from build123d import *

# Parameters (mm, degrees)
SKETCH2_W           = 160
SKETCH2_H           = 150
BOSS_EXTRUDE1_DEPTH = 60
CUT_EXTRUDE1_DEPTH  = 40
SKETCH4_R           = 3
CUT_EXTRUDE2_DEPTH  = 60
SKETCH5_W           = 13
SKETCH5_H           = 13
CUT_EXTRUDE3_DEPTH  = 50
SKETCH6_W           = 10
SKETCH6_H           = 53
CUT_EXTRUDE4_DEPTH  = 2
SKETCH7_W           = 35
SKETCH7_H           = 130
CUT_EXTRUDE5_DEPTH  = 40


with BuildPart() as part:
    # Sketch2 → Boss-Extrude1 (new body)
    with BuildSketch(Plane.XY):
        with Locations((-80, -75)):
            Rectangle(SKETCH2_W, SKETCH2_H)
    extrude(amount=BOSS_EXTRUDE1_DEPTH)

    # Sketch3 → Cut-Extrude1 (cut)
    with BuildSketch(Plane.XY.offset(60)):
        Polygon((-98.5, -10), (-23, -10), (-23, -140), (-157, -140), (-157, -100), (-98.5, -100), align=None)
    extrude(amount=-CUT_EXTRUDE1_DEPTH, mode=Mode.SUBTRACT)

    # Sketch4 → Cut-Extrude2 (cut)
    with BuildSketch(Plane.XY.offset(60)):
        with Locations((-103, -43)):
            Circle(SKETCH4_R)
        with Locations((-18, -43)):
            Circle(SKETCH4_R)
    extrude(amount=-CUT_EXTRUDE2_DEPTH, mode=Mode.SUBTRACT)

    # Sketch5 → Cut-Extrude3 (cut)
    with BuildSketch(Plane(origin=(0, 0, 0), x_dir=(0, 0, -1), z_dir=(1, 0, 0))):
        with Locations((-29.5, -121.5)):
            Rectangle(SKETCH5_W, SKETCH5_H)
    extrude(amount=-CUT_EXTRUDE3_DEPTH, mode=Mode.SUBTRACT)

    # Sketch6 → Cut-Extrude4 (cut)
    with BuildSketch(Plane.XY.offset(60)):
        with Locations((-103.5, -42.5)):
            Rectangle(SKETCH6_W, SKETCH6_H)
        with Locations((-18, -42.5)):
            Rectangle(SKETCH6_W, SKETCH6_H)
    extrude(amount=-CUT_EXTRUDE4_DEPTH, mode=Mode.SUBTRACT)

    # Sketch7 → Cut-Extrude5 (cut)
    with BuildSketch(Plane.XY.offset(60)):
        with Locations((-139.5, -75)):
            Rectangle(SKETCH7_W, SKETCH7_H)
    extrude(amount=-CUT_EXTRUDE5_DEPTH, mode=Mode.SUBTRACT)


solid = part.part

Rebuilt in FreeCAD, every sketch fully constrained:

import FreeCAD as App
import Part
import Sketcher
from FreeCAD import Vector

doc = App.newDocument("Part")
body = doc.addObject("PartDesign::Body", "Body")

sketch1 = body.newObject("Sketcher::SketchObject", "Sketch")
sketch1.AttachmentSupport = (doc.getObject("XY_Plane"), [""])
sketch1.MapMode = "FlatFace"
sketch1.addGeometry([
    Part.LineSegment(Vector(-160, 0, 0), Vector(-160, -150, 0)),
    Part.LineSegment(Vector(-160, -150, 0), Vector(0, -150, 0)),
    Part.LineSegment(Vector(0, -150, 0), Vector(0, 0, 0)),
    Part.LineSegment(Vector(0, 0, 0), Vector(-160, 0, 0)),
], False)
sketch1.addConstraint([
    Sketcher.Constraint("Coincident", 0, 2, 1, 1),
    Sketcher.Constraint("Coincident", 1, 2, 2, 1),
    Sketcher.Constraint("Coincident", 2, 2, 3, 1),
    Sketcher.Constraint("Coincident", 3, 2, 0, 1),
    Sketcher.Constraint("Vertical", 0),
    Sketcher.Constraint("Horizontal", 1),
    Sketcher.Constraint("Vertical", 2),
    Sketcher.Constraint("Horizontal", 3),
    Sketcher.Constraint("Coincident", 2, 2, -1, 1),
    Sketcher.Constraint("DistanceX", 1, 1, 1, 2, 160.0),
    Sketcher.Constraint("DistanceY", 0, 2, 0, 1, 150.0),
])
pad1 = body.newObject("PartDesign::Pad", "Pad")
pad1.Profile = sketch1
pad1.Length = 60

sketch2 = body.newObject("Sketcher::SketchObject", "Sketch001")
sketch2.AttachmentSupport = (doc.getObject("XY_Plane"), [""])
sketch2.MapMode = "FlatFace"
sketch2.AttachmentOffset = App.Placement(Vector(0, 0, 60), App.Rotation())
sketch2.addGeometry([
    Part.LineSegment(Vector(-23, -10, 0), Vector(-98.5, -10, 0)),
    Part.LineSegment(Vector(-98.5, -10, 0), Vector(-98.5, -100, 0)),
    Part.LineSegment(Vector(-98.5, -100, 0), Vector(-157, -100, 0)),
    Part.LineSegment(Vector(-157, -100, 0), Vector(-157, -140, 0)),
    Part.LineSegment(Vector(-157, -140, 0), Vector(-23, -140, 0)),
    Part.LineSegment(Vector(-23, -140, 0), Vector(-23, -10, 0)),
], False)
sketch2.addConstraint([
    Sketcher.Constraint("Coincident", 0, 2, 1, 1),
    Sketcher.Constraint("Coincident", 1, 2, 2, 1),
    Sketcher.Constraint("Coincident", 2, 2, 3, 1),
    Sketcher.Constraint("Coincident", 3, 2, 4, 1),
    Sketcher.Constraint("Coincident", 4, 2, 5, 1),
    Sketcher.Constraint("Coincident", 5, 2, 0, 1),
    Sketcher.Constraint("Horizontal", 0),
    Sketcher.Constraint("Vertical", 1),
    Sketcher.Constraint("Horizontal", 2),
    Sketcher.Constraint("Vertical", 3),
    Sketcher.Constraint("Horizontal", 4),
    Sketcher.Constraint("Vertical", 5),
    Sketcher.Constraint("DistanceX", 4, 1, 4, 2, 134.0),
    Sketcher.Constraint("DistanceY", 1, 2, 1, 1, 90.0),
    Sketcher.Constraint("DistanceY", 3, 2, 3, 1, 40.0),
    Sketcher.Constraint("DistanceX", 0, 2, 0, 1, 75.5),
    Sketcher.Constraint("DistanceY", 0, 2, -1, 1, 10.0),
    Sketcher.Constraint("DistanceX", 2, 2, -1, 1, 157.0),
])
pocket1 = body.newObject("PartDesign::Pocket", "Pocket")
pocket1.Profile = sketch2
pocket1.Length = 40

sketch3 = body.newObject("Sketcher::SketchObject", "Sketch002")
sketch3.AttachmentSupport = (doc.getObject("XY_Plane"), [""])
sketch3.MapMode = "FlatFace"
sketch3.AttachmentOffset = App.Placement(Vector(0, 0, 60), App.Rotation())
sketch3.addGeometry([
    Part.Circle(Vector(-103, -43, 0), Vector(0, 0, 1), 3),
    Part.Circle(Vector(-18, -43, 0), Vector(0, 0, 1), 3),
], False)
sketch3.addConstraint([
    Sketcher.Constraint("Equal", 0, 1),
    Sketcher.Constraint("Horizontal", 0, 3, 1, 3),
    Sketcher.Constraint("Diameter", 0, 6.0),
    Sketcher.Constraint("DistanceX", 0, 3, -1, 1, 103.0),
    Sketcher.Constraint("DistanceY", 0, 3, -1, 1, 43.0),
    Sketcher.Constraint("DistanceX", 1, 3, -1, 1, 18.0),
])
pocket2 = body.newObject("PartDesign::Pocket", "Pocket001")
pocket2.Profile = sketch3
pocket2.Length = 60

sketch4 = body.newObject("Sketcher::SketchObject", "Sketch003")
sketch4.AttachmentSupport = (doc.getObject("YZ_Plane"), [""])
sketch4.MapMode = "FlatFace"
sketch4.addGeometry([
    Part.LineSegment(Vector(-115, 36, 0), Vector(-128, 36, 0)),
    Part.LineSegment(Vector(-128, 36, 0), Vector(-128, 23, 0)),
    Part.LineSegment(Vector(-128, 23, 0), Vector(-115, 23, 0)),
    Part.LineSegment(Vector(-115, 23, 0), Vector(-115, 36, 0)),
], False)
sketch4.addConstraint([
    Sketcher.Constraint("Coincident", 0, 2, 1, 1),
    Sketcher.Constraint("Coincident", 1, 2, 2, 1),
    Sketcher.Constraint("Coincident", 2, 2, 3, 1),
    Sketcher.Constraint("Coincident", 3, 2, 0, 1),
    Sketcher.Constraint("Horizontal", 0),
    Sketcher.Constraint("Vertical", 1),
    Sketcher.Constraint("Horizontal", 2),
    Sketcher.Constraint("Vertical", 3),
    Sketcher.Constraint("Equal", 2, 1),
    Sketcher.Constraint("DistanceX", 0, 2, 0, 1, 13.0),
    Sketcher.Constraint("DistanceX", 0, 2, -1, 1, 128.0),
    Sketcher.Constraint("DistanceY", -1, 1, 0, 2, 36.0),
])
pocket3 = body.newObject("PartDesign::Pocket", "Pocket002")
pocket3.Profile = sketch4
pocket3.Length = 50

sketch5 = body.newObject("Sketcher::SketchObject", "Sketch004")
sketch5.AttachmentSupport = (doc.getObject("XY_Plane"), [""])
sketch5.MapMode = "FlatFace"
sketch5.AttachmentOffset = App.Placement(Vector(0, 0, 60), App.Rotation())
sketch5.addGeometry([
    Part.LineSegment(Vector(-108.5, -16, 0), Vector(-108.5, -69, 0)),
    Part.LineSegment(Vector(-108.5, -69, 0), Vector(-98.5, -69, 0)),
    Part.LineSegment(Vector(-98.5, -69, 0), Vector(-98.5, -16, 0)),
    Part.LineSegment(Vector(-98.5, -16, 0), Vector(-108.5, -16, 0)),
    Part.LineSegment(Vector(-23, -16, 0), Vector(-23, -69, 0)),
    Part.LineSegment(Vector(-23, -69, 0), Vector(-13, -69, 0)),
    Part.LineSegment(Vector(-13, -69, 0), Vector(-13, -16, 0)),
    Part.LineSegment(Vector(-13, -16, 0), Vector(-23, -16, 0)),
], False)
sketch5.addConstraint([
    Sketcher.Constraint("Coincident", 0, 2, 1, 1),
    Sketcher.Constraint("Coincident", 1, 2, 2, 1),
    Sketcher.Constraint("Coincident", 2, 2, 3, 1),
    Sketcher.Constraint("Coincident", 3, 2, 0, 1),
    Sketcher.Constraint("Coincident", 4, 2, 5, 1),
    Sketcher.Constraint("Coincident", 5, 2, 6, 1),
    Sketcher.Constraint("Coincident", 6, 2, 7, 1),
    Sketcher.Constraint("Coincident", 7, 2, 4, 1),
    Sketcher.Constraint("Vertical", 0),
    Sketcher.Constraint("Horizontal", 1),
    Sketcher.Constraint("Vertical", 2),
    Sketcher.Constraint("Horizontal", 3),
    Sketcher.Constraint("Vertical", 4),
    Sketcher.Constraint("Horizontal", 5),
    Sketcher.Constraint("Vertical", 6),
    Sketcher.Constraint("Horizontal", 7),
    Sketcher.Constraint("Horizontal", 1, 2, 4, 2),
    Sketcher.Constraint("Horizontal", 3, 2, 6, 2),
    Sketcher.Constraint("Equal", 3, 5),
    Sketcher.Constraint("DistanceX", 1, 1, 1, 2, 10.0),
    Sketcher.Constraint("DistanceY", 0, 2, 0, 1, 53.0),
    Sketcher.Constraint("DistanceY", 0, 2, -1, 1, 69.0),
    Sketcher.Constraint("DistanceX", 4, 2, -1, 1, 23.0),
    Sketcher.Constraint("DistanceX", 0, 2, -1, 1, 108.5),
])
pocket4 = body.newObject("PartDesign::Pocket", "Pocket003")
pocket4.Profile = sketch5
pocket4.Length = 2

sketch6 = body.newObject("Sketcher::SketchObject", "Sketch005")
sketch6.AttachmentSupport = (doc.getObject("XY_Plane"), [""])
sketch6.MapMode = "FlatFace"
sketch6.AttachmentOffset = App.Placement(Vector(0, 0, 60), App.Rotation())
sketch6.addGeometry([
    Part.LineSegment(Vector(-157, -10, 0), Vector(-157, -140, 0)),
    Part.LineSegment(Vector(-157, -140, 0), Vector(-122, -140, 0)),
    Part.LineSegment(Vector(-122, -140, 0), Vector(-122, -10, 0)),
    Part.LineSegment(Vector(-122, -10, 0), Vector(-157, -10, 0)),
], False)
sketch6.addConstraint([
    Sketcher.Constraint("Coincident", 0, 2, 1, 1),
    Sketcher.Constraint("Coincident", 1, 2, 2, 1),
    Sketcher.Constraint("Coincident", 2, 2, 3, 1),
    Sketcher.Constraint("Coincident", 3, 2, 0, 1),
    Sketcher.Constraint("Vertical", 0),
    Sketcher.Constraint("Horizontal", 1),
    Sketcher.Constraint("Vertical", 2),
    Sketcher.Constraint("Horizontal", 3),
    Sketcher.Constraint("DistanceX", 1, 1, 1, 2, 35.0),
    Sketcher.Constraint("DistanceY", 0, 2, 0, 1, 130.0),
    Sketcher.Constraint("DistanceX", 0, 2, -1, 1, 157.0),
    Sketcher.Constraint("DistanceY", 0, 2, -1, 1, 140.0),
])
pocket5 = body.newObject("PartDesign::Pocket", "Pocket004")
pocket5.Profile = sketch6
pocket5.Length = 40

doc.recompute()
